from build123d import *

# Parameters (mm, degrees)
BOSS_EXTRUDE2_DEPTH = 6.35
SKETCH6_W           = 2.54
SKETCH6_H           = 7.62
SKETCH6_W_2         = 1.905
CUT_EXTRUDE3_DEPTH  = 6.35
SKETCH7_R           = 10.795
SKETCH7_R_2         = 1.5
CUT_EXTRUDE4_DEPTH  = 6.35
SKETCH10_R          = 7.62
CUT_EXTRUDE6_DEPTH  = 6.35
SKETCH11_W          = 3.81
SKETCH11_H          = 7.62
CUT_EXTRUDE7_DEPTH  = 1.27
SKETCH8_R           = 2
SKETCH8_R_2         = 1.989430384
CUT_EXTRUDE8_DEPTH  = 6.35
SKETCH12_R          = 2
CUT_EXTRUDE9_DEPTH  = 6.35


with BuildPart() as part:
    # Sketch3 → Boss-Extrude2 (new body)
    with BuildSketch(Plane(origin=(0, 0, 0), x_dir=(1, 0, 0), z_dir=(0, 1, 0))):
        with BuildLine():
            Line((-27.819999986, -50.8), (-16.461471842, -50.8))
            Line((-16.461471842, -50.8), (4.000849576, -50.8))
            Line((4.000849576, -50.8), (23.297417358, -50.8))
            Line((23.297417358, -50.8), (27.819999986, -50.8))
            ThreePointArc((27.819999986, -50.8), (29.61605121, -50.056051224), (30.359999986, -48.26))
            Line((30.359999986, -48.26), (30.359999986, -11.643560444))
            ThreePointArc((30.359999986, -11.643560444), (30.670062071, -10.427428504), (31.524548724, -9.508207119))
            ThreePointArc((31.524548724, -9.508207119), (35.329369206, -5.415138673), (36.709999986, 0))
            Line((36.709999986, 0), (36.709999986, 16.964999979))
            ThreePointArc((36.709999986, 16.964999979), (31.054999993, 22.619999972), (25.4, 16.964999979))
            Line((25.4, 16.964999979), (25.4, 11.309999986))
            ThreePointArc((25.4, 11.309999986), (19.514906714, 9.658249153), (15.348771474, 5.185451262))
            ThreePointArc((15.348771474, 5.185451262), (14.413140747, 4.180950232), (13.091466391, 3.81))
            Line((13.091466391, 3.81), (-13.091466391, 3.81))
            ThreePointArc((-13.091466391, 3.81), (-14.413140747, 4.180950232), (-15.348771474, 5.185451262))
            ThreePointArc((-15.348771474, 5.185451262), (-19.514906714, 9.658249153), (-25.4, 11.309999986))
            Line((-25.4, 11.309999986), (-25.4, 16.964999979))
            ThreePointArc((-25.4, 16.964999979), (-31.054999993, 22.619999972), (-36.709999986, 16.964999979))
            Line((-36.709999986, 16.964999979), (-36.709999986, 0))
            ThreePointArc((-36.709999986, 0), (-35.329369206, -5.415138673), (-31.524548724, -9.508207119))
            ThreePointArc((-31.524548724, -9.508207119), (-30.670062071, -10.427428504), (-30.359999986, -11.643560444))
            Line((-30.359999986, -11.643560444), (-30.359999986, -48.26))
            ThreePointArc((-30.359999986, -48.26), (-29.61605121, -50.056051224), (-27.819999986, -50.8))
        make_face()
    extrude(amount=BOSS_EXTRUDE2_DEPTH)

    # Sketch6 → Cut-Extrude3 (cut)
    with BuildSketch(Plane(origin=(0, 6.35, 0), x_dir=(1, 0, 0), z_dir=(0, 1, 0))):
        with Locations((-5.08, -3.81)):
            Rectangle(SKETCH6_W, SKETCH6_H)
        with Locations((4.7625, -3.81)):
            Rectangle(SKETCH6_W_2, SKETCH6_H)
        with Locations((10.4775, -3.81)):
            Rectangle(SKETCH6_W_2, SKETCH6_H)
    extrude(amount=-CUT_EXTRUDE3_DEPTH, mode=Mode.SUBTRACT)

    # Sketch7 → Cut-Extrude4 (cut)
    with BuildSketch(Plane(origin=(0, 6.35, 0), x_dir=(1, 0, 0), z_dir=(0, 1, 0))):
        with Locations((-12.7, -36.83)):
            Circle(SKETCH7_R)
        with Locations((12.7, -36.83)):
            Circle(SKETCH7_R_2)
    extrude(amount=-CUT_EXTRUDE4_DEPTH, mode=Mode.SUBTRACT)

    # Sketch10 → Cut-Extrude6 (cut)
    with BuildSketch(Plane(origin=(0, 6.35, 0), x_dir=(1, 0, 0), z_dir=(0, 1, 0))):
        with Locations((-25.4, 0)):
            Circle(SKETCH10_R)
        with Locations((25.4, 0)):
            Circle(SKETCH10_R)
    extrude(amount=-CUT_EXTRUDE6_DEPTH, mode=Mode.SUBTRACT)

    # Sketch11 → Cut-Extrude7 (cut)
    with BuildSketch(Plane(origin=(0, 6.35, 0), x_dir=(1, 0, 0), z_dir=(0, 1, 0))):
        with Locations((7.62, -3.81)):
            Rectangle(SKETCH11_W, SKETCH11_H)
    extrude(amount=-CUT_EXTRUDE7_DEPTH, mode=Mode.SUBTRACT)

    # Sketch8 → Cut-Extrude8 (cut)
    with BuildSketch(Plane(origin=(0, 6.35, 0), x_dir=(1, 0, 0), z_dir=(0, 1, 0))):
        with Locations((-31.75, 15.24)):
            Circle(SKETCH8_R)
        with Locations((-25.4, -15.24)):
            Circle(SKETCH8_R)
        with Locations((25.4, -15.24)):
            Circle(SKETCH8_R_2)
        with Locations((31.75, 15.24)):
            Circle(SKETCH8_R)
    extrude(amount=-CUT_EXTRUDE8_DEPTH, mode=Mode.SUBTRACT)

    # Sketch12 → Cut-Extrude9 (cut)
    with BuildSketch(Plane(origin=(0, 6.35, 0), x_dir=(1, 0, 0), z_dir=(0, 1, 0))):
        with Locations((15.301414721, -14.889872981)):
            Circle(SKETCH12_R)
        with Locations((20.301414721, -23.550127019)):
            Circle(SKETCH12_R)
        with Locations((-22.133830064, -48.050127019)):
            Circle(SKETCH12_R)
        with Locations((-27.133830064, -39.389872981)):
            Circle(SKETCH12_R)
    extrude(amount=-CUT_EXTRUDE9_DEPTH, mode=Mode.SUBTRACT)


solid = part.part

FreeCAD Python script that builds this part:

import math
import FreeCAD as App
import Part
import Sketcher
from FreeCAD import Vector
Q = App.Units.Quantity


def add_polygon(sketch, points):
    """Adds a closed chain of lines whose ends are joined by coincident constraints."""
    first, n = sketch.GeometryCount, len(points)
    for a, b in zip(points, points[1:] + points[:1]):
        sketch.addGeometry(Part.LineSegment(App.Vector(*a, 0), App.Vector(*b, 0)), False)
    for i in range(n):
        sketch.addConstraint(Sketcher.Constraint("Coincident", first + i, 2, first + (i + 1) % n, 1))

doc = App.newDocument("Part")
body = doc.addObject("PartDesign::Body", "Body")

# Sketch on XZ plane
sketch1 = body.newObject("Sketcher::SketchObject", "Sketch")
sketch1.AttachmentSupport = (doc.getObject("XZ_Plane"), [""])
sketch1.MapMode = "FlatFace"
sketch1.addGeometry([
    Part.LineSegment(Vector(-27.82, 50.8, 0), Vector(27.82, 50.8, 0)),  # 0
    Part.ArcOfCircle(Part.Circle(Vector(27.82, 48.26, 0), Vector(0, 0, 1), 2.54), math.radians(0), math.radians(90)),  # 1
    Part.LineSegment(Vector(30.36, 48.26, 0), Vector(30.36, 11.64356, 0)),  # 2
    Part.ArcOfCircle(Part.Circle(Vector(32.9, 11.64356, 0), Vector(0, 0, 1), 2.54), math.radians(180), math.radians(237.213084)),  # 3
    Part.ArcOfCircle(Part.Circle(Vector(25.4, 0, 0), Vector(0, 0, 1), 11.31), math.radians(0), math.radians(57.213084)),  # 4
    Part.LineSegment(Vector(36.71, 0, 0), Vector(36.71, -16.965, 0)),  # 5
    Part.ArcOfCircle(Part.Circle(Vector(31.055, -16.965, 0), Vector(0, 0, 1), 5.655), math.radians(180), math.radians(360)),  # 6
    Part.LineSegment(Vector(25.4, -16.965, 0), Vector(25.4, -11.31, 0)),  # 7
    Part.ArcOfCircle(Part.Circle(Vector(25.4, 0, 0), Vector(0, 0, 1), 11.31), math.radians(-152.71069), math.radians(-90)),  # 8
    Part.ArcOfCircle(Part.Circle(Vector(13.091466, -6.35, 0), Vector(0, 0, 1), 2.54), math.radians(27.28931), math.radians(90)),  # 9
    Part.LineSegment(Vector(13.091466, -3.81, 0), Vector(-13.091466, -3.81, 0)),  # 10
    Part.ArcOfCircle(Part.Circle(Vector(-13.091466, -6.35, 0), Vector(0, 0, 1), 2.54), math.radians(90), math.radians(152.71069)),  # 11
    Part.ArcOfCircle(Part.Circle(Vector(-25.4, 0, 0), Vector(0, 0, 1), 11.31), math.radians(-90), math.radians(-27.28931)),  # 12
    Part.LineSegment(Vector(-25.4, -11.31, 0), Vector(-25.4, -16.965, 0)),  # 13
    Part.ArcOfCircle(Part.Circle(Vector(-31.055, -16.965, 0), Vector(0, 0, 1), 5.655), math.radians(180), math.radians(360)),  # 14
    Part.LineSegment(Vector(-36.71, -16.965, 0), Vector(-36.71, 0, 0)),  # 15
    Part.ArcOfCircle(Part.Circle(Vector(-25.4, 0, 0), Vector(0, 0, 1), 11.31), math.radians(122.786916), math.radians(180)),  # 16
    Part.ArcOfCircle(Part.Circle(Vector(-32.9, 11.64356, 0), Vector(0, 0, 1), 2.54), math.radians(-57.213084), math.radians(0)),  # 17
    Part.LineSegment(Vector(-30.36, 11.64356, 0), Vector(-30.36, 48.26, 0)),  # 18
    Part.ArcOfCircle(Part.Circle(Vector(-27.82, 48.26, 0), Vector(0, 0, 1), 2.54), math.radians(90), math.radians(180)),  # 19
], False)
sketch1.addConstraint([
    Sketcher.Constraint("Tangent", 0, 2, 1, 2),
    Sketcher.Constraint("Tangent", 1, 1, 2, 1),
    Sketcher.Constraint("Tangent", 2, 2, 3, 1),
    Sketcher.Constraint("Tangent", 3, 2, 4, 2),
    Sketcher.Constraint("Tangent", 4, 1, 5, 1),
    Sketcher.Constraint("Tangent", 5, 2, 6, 2),
    Sketcher.Constraint("Tangent", 6, 1, 7, 1),
    Sketcher.Constraint("Coincident", 7, 2, 8, 2),
    Sketcher.Constraint("Tangent", 8, 1, 9, 1),
    Sketcher.Constraint("Tangent", 9, 2, 10, 1),
    Sketcher.Constraint("Tangent", 10, 2, 11, 1),
    Sketcher.Constraint("Tangent", 11, 2, 12, 2),
    Sketcher.Constraint("Coincident", 12, 1, 13, 1),
    Sketcher.Constraint("Tangent", 13, 2, 14, 2),
    Sketcher.Constraint("Tangent", 14, 1, 15, 1),
    Sketcher.Constraint("Tangent", 15, 2, 16, 2),
    Sketcher.Constraint("Tangent", 16, 1, 17, 1),
    Sketcher.Constraint("Tangent", 17, 2, 18, 1),
    Sketcher.Constraint("Tangent", 18, 2, 19, 2),
    Sketcher.Constraint("Tangent", 19, 1, 0, 1),
    Sketcher.Constraint("Horizontal", 0),
    Sketcher.Constraint("Vertical", 2),
    Sketcher.Constraint("Vertical", 5),
    Sketcher.Constraint("Vertical", 7),
    Sketcher.Constraint("Horizontal", 10),
    Sketcher.Constraint("Vertical", 13),
    Sketcher.Constraint("Vertical", 15),
    Sketcher.Constraint("Vertical", 18),
    Sketcher.Constraint("Coincident", 8, 3, 4, 3),
    Sketcher.Constraint("Coincident", 16, 3, 12, 3),
    Sketcher.Constraint("Equal", 1, 3),
    Sketcher.Constraint("Equal", 4, 8),
    Sketcher.Constraint("Equal", 3, 9),
    Sketcher.Constraint("Equal", 9, 11),
    Sketcher.Constraint("Equal", 8, 12),
    Sketcher.Constraint("Equal", 6, 14),
    Sketcher.Constraint("Equal", 12, 16),
    Sketcher.Constraint("Equal", 11, 17),
    Sketcher.Constraint("Equal", 17, 19),
    Sketcher.Constraint("Symmetric", 4, 3, 12, 3, -1, 1),
    Sketcher.Constraint("Symmetric", 3, 3, 17, 3, -2),
    Sketcher.Constraint("Horizontal", 6, 3, 14, 3),
    Sketcher.Constraint("Vertical", 8, 3, 6, 1),
    Sketcher.Constraint("Radius", 1, Q("0.1 in")),
    Sketcher.Constraint("DistanceX", -1, 1, 4, 3, Q("1 in")),
    Sketcher.Constraint("DistanceY", -1, 1, 0, 2, Q("2 in")),
    Sketcher.Constraint("DistanceY", 9, 3, -1, 1, Q("0.25 in")),
    Sketcher.Constraint("Radius", 4, 11.31),
    Sketcher.Constraint("DistanceX", 3, 3, 4, 1, Q("0.15 in")),
    Sketcher.Constraint("DistanceY", 5, 2, 5, 1, 16.965),
])
pad1 = body.newObject("PartDesign::Pad", "Pad")
pad1.Profile = sketch1
pad1.Length = Q("0.25 in")
pad1.Reversed = True

# Sketch on XZ plane
sketch2 = body.newObject("Sketcher::SketchObject", "Sketch001")
sketch2.AttachmentSupport = (doc.getObject("XZ_Plane"), [""])
sketch2.MapMode = "FlatFace"
sketch2.AttachmentOffset = App.Placement(Vector(0, 0, -0.25 * 25.4), App.Rotation())
add_polygon(sketch2, [(-6.35, 0), (-6.35, 7.62), (-3.81, 7.62), (-3.81, 0)])  # lines 0-3
add_polygon(sketch2, [(3.81, 0), (3.81, 7.62), (5.715, 7.62), (5.715, 0)])  # lines 4-7
add_polygon(sketch2, [(9.525, 0), (9.525, 7.62), (11.43, 7.62), (11.43, 0)])  # lines 8-11
sketch2.addConstraint([
    Sketcher.Constraint("Vertical", 0),
    Sketcher.Constraint("Horizontal", 1),
    Sketcher.Constraint("Vertical", 2),
    Sketcher.Constraint("Horizontal", 3),
    Sketcher.Constraint("Vertical", 4),
    Sketcher.Constraint("Horizontal", 5),
    Sketcher.Constraint("Vertical", 6),
    Sketcher.Constraint("Horizontal", 7),
    Sketcher.Constraint("Vertical", 8),
    Sketcher.Constraint("Horizontal", 9),
    Sketcher.Constraint("Vertical", 10),
    Sketcher.Constraint("Horizontal", 11),
    Sketcher.Constraint("Symmetric", 2, 2, 7, 2, -1, 1),
    Sketcher.Constraint("PointOnObject", 2, 2, -1),
    Sketcher.Constraint("PointOnObject", 10, 2, -1),
    Sketcher.Constraint("Horizontal", 1, 2, 4, 2),
    Sketcher.Constraint("Horizontal", 5, 2, 8, 2),
    Sketcher.Constraint("Equal", 7, 9),
    Sketcher.Constraint("DistanceX", 1, 1, 1, 2, Q("0.1 in")),
    Sketcher.Constraint("DistanceY", 0, 1, 0, 2, Q("0.3 in")),
    Sketcher.Constraint("DistanceX", 1, 2, 4, 2, Q("0.3 in")),
    Sketcher.Constraint("DistanceX", 4, 2, 9, 2, Q("0.3 in")),
    Sketcher.Constraint("DistanceX", 5, 1, 5, 2, Q("0.075 in")),
])
pocket1 = body.newObject("PartDesign::Pocket", "Pocket")
pocket1.Profile = sketch2
pocket1.Length = Q("0.25 in")
pocket1.Reversed = True

# Sketch on XZ plane
sketch3 = body.newObject("Sketcher::SketchObject", "Sketch002")
sketch3.AttachmentSupport = (doc.getObject("XZ_Plane"), [""])
sketch3.MapMode = "FlatFace"
sketch3.AttachmentOffset = App.Placement(Vector(0, 0, -0.25 * 25.4), App.Rotation())
sketch3.addGeometry([
    Part.Circle(Vector(-12.7, 36.83, 0), Vector(0, 0, 1), 10.795),
    Part.Circle(Vector(12.7, 36.83, 0), Vector(0, 0, 1), 1.5),
], False)
sketch3.addConstraint([
    Sketcher.Constraint("Symmetric", 0, 3, 1, 3, -2),
    Sketcher.Constraint("Diameter", 0, Q("0.85 in")),
    Sketcher.Constraint("DistanceX", 0, 3, 1, 3, Q("1 in")),
    Sketcher.Constraint("Diameter", 1, 3.0),
    Sketcher.Constraint("DistanceY", -1, 1, 0, 3, Q("1.45 in")),
])
pocket2 = body.newObject("PartDesign::Pocket", "Pocket001")
pocket2.Profile = sketch3
pocket2.Length = Q("0.25 in")
pocket2.Reversed = True

# Sketch on XZ plane
sketch4 = body.newObject("Sketcher::SketchObject", "Sketch003")
sketch4.AttachmentSupport = (doc.getObject("XZ_Plane"), [""])
sketch4.MapMode = "FlatFace"
sketch4.AttachmentOffset = App.Placement(Vector(0, 0, -0.25 * 25.4), App.Rotation())
sketch4.addGeometry([
    Part.Circle(Vector(-25.4, 0, 0), Vector(0, 0, 1), 7.62),
    Part.Circle(Vector(25.4, 0, 0), Vector(0, 0, 1), 7.62),
], False)
sketch4.addConstraint([
    Sketcher.Constraint("Equal", 0, 1),
    Sketcher.Constraint("Symmetric", 0, 3, 1, 3, -1, 1),
    Sketcher.Constraint("PointOnObject", 0, 3, -1),
    Sketcher.Constraint("Diameter", 0, Q("0.6 in")),
    Sketcher.Constraint("DistanceX", 0, 3, -1, 1, Q("1 in")),
])
pocket3 = body.newObject("PartDesign::Pocket", "Pocket002")
pocket3.Profile = sketch4
pocket3.Length = Q("0.25 in")
pocket3.Reversed = True

# Sketch on XZ plane
sketch5 = body.newObject("Sketcher::SketchObject", "Sketch004")
sketch5.AttachmentSupport = (doc.getObject("XZ_Plane"), [""])
sketch5.MapMode = "FlatFace"
sketch5.AttachmentOffset = App.Placement(Vector(0, 0, -0.25 * 25.4), App.Rotation())
add_polygon(sketch5, [(5.715, 0), (5.715, 7.62), (9.525, 7.62), (9.525, 0)])  # lines 0-3
sketch5.addConstraint([
    Sketcher.Constraint("Vertical", 0),
    Sketcher.Constraint("Horizontal", 1),
    Sketcher.Constraint("Vertical", 2),
    Sketcher.Constraint("Horizontal", 3),
    Sketcher.Constraint("PointOnObject", 2, 2, -1),
    Sketcher.Constraint("DistanceY", 0, 1, 0, 2, Q("0.3 in")),
    Sketcher.Constraint("DistanceX", 1, 1, 1, 2, Q("0.15 in")),
    Sketcher.Constraint("DistanceX", -1, 1, 0, 2, Q("0.225 in")),
])
pocket4 = body.newObject("PartDesign::Pocket", "Pocket003")
pocket4.Profile = sketch5
pocket4.Length = Q("0.05 in")
pocket4.Reversed = True

# Sketch on XZ plane
sketch6 = body.newObject("Sketcher::SketchObject", "Sketch005")
sketch6.AttachmentSupport = (doc.getObject("XZ_Plane"), [""])
sketch6.MapMode = "FlatFace"
sketch6.AttachmentOffset = App.Placement(Vector(0, 0, -0.25 * 25.4), App.Rotation())
sketch6.addGeometry([
    Part.Circle(Vector(-31.75, -15.24, 0), Vector(0, 0, 1), 2),
    Part.Circle(Vector(-25.4, 15.24, 0), Vector(0, 0, 1), 2),
    Part.Circle(Vector(25.4, 15.24, 0), Vector(0, 0, 1), 1.98943),
    Part.Circle(Vector(31.75, -15.24, 0), Vector(0, 0, 1), 2),
], False)
sketch6.addConstraint([
    Sketcher.Constraint("Equal", 0, 1),
    Sketcher.Constraint("Equal", 1, 3),
    Sketcher.Constraint("Symmetric", 1, 3, 2, 3, -2),
    Sketcher.Constraint("Symmetric", 0, 3, 3, 3, -2),
    Sketcher.Constraint("DistanceX", 1, 3, -1, 1, Q("1 in")),
    Sketcher.Constraint("DistanceY", 0, 3, -1, 1, Q("0.6 in")),
    Sketcher.Constraint("DistanceY", -1, 1, 1, 3, Q("0.6 in")),
    Sketcher.Constraint("DistanceX", 0, 3, 3, 3, Q("2.5 in")),
    Sketcher.Constraint("Diameter", 0, 4.0),
    Sketcher.Constraint("Diameter", 2, 3.978861),
])
pocket5 = body.newObject("PartDesign::Pocket", "Pocket004")
pocket5.Profile = sketch6
pocket5.Length = Q("0.25 in")
pocket5.Reversed = True

# Sketch on XZ plane
sketch7 = body.newObject("Sketcher::SketchObject", "Sketch006")
sketch7.AttachmentSupport = (doc.getObject("XZ_Plane"), [""])
sketch7.MapMode = "FlatFace"
sketch7.AttachmentOffset = App.Placement(Vector(0, 0, -0.25 * 25.4), App.Rotation())
sketch7.addGeometry([
    Part.Circle(Vector(15.301415, 14.889873, 0), Vector(0, 0, 1), 2),
    Part.Circle(Vector(20.301415, 23.550127, 0), Vector(0, 0, 1), 2),
    Part.Circle(Vector(-22.13383, 48.050127, 0), Vector(0, 0, 1), 2),
    Part.Circle(Vector(-27.13383, 39.389873, 0), Vector(0, 0, 1), 2),
], False)
sketch7.addConstraint([
    Sketcher.Constraint("Equal", 0, 1),
    Sketcher.Constraint("Equal", 1, 2),
    Sketcher.Constraint("Equal", 2, 3),
    Sketcher.Constraint("Diameter", 0, 4.0),
    Sketcher.Constraint("DistanceX", 0, 3, 1, 3, 5.0),
    Sketcher.Constraint("DistanceY", 1, 3, 2, 3, 24.5),
    Sketcher.Constraint("DistanceX", 3, 3, 2, 3, 5.0),
    Sketcher.Constraint("DistanceY", 0, 3, 3, 3, 24.5),
    Sketcher.Constraint("DistanceX", 2, 3, -1, 1, 22.13383),
    Sketcher.Constraint("DistanceX", -1, 1, 0, 3, 15.301415),
    Sketcher.Constraint("DistanceY", -1, 1, 0, 3, 14.889873),
    Sketcher.Constraint("DistanceY", -1, 1, 1, 3, 23.550127),
])
pocket6 = body.newObject("PartDesign::Pocket", "Pocket005")
pocket6.Profile = sketch7
pocket6.Length = Q("0.25 in")
pocket6.Reversed = True

doc.recompute()
